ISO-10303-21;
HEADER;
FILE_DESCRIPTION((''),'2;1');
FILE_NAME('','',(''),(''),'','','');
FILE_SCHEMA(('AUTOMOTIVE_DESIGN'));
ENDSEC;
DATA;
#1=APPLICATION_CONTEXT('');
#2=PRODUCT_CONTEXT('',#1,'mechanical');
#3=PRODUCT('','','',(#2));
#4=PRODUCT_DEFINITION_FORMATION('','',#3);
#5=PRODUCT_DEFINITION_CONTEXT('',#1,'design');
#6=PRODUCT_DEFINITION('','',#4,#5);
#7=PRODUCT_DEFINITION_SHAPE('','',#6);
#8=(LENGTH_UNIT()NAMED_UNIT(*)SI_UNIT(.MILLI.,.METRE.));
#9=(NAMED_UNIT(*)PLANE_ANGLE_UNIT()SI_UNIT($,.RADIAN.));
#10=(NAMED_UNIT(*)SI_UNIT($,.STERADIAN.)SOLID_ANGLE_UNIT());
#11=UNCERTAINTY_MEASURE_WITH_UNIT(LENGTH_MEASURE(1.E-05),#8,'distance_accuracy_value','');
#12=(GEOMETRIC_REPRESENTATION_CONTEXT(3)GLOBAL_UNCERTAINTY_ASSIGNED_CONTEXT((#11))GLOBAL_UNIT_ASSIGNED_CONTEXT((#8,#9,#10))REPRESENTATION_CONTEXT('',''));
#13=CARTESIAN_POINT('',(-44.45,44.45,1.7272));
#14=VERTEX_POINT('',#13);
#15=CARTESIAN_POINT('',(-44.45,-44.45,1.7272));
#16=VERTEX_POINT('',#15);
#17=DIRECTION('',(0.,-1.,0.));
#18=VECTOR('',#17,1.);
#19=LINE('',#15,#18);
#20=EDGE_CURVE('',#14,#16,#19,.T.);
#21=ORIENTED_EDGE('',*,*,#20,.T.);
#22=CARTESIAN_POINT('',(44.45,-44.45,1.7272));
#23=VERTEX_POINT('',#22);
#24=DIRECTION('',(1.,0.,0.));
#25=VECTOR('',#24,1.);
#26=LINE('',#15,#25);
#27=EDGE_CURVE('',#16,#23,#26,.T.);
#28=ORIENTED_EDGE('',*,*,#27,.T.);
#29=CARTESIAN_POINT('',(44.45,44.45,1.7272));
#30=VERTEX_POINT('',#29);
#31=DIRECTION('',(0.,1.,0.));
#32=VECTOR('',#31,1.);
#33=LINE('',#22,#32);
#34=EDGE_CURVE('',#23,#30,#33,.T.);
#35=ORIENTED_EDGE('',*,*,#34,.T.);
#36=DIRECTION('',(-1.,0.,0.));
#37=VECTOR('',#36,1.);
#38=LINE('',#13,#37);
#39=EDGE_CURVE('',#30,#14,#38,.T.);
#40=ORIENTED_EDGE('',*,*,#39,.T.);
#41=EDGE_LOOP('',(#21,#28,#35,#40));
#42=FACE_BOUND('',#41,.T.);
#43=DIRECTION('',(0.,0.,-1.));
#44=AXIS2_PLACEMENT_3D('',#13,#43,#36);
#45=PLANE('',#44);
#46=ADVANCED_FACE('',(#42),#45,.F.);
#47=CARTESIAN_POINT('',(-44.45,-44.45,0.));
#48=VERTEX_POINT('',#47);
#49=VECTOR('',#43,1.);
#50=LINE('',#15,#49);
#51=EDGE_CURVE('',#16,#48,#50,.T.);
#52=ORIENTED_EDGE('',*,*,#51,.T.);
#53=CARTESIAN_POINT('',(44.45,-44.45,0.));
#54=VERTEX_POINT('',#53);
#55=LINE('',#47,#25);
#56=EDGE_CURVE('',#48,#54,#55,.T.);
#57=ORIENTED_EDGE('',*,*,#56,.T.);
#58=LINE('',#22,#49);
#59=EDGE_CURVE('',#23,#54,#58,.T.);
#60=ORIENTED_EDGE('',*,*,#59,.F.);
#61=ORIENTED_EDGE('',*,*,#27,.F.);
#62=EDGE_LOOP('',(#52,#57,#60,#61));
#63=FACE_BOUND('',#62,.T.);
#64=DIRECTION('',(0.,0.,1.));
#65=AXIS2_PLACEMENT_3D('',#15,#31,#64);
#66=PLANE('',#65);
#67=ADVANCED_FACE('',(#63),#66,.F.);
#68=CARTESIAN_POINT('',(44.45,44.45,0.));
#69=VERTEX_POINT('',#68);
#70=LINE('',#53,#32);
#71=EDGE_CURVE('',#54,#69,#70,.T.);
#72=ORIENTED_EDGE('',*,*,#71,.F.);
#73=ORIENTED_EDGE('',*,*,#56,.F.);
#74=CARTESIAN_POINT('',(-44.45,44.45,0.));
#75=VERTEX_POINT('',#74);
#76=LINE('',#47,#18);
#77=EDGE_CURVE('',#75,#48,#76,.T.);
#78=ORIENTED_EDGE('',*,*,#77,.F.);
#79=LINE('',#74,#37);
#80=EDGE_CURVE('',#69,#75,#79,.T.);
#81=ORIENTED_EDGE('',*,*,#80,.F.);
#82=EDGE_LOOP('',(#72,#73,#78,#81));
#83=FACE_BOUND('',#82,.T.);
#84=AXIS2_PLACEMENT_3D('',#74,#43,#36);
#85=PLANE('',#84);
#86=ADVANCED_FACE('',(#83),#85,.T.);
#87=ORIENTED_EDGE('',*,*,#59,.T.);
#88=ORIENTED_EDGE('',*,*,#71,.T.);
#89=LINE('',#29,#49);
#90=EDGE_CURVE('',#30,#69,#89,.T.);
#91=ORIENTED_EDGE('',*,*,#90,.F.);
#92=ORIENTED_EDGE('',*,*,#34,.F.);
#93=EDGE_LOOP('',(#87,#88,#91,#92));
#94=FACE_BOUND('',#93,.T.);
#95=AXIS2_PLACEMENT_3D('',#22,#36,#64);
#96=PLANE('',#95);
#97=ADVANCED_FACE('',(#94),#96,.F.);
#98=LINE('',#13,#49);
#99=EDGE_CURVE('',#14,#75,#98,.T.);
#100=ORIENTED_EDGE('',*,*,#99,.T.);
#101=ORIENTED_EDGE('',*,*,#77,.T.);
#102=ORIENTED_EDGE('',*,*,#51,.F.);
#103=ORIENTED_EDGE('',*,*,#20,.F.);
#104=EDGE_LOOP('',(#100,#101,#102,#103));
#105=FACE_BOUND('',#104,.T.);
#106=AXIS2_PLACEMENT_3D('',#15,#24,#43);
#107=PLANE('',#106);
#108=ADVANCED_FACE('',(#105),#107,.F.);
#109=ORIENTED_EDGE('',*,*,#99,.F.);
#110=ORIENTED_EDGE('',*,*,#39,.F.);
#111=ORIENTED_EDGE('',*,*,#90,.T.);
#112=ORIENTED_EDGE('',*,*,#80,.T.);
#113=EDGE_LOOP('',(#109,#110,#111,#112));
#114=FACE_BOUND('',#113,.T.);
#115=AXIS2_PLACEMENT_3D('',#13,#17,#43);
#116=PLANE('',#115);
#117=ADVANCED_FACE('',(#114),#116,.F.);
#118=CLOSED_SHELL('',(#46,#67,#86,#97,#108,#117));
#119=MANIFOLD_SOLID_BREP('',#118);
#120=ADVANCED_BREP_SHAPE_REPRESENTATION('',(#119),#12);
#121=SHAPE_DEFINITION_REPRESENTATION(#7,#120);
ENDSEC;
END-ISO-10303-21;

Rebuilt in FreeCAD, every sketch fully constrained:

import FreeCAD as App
import Part
import Sketcher
Q = App.Units.Quantity

doc = App.newDocument("Part")
body = doc.addObject("PartDesign::Body", "Body")

sketch1 = body.newObject("Sketcher::SketchObject", "Sketch")
sketch1.AttachmentSupport = (doc.getObject("XY_Plane"), [""])
sketch1.MapMode = "FlatFace"
sketch1.addGeometry([
    Part.LineSegment(App.Vector(-44.45, 44.45, 0), App.Vector(-44.45, -44.45, 0)),
    Part.LineSegment(App.Vector(-44.45, -44.45, 0), App.Vector(44.45, -44.45, 0)),
    Part.LineSegment(App.Vector(44.45, -44.45, 0), App.Vector(44.45, 44.45, 0)),
    Part.LineSegment(App.Vector(44.45, 44.45, 0), App.Vector(-44.45, 44.45, 0)),
], False)
sketch1.addConstraint([
    Sketcher.Constraint("Coincident", 0, 2, 1, 1),
    Sketcher.Constraint("Coincident", 1, 2, 2, 1),
    Sketcher.Constraint("Coincident", 2, 2, 3, 1),
    Sketcher.Constraint("Coincident", 3, 2, 0, 1),
    Sketcher.Constraint("Vertical", 0),
    Sketcher.Constraint("Horizontal", 1),
    Sketcher.Constraint("Vertical", 2),
    Sketcher.Constraint("Horizontal", 3),
    Sketcher.Constraint("Symmetric", 0, 2, 2, 2, -1, 1),
    Sketcher.Constraint("Equal", 3, 0),
    Sketcher.Constraint("DistanceX", 1, 1, 1, 2, Q("3.5 in")),
])
pad1 = body.newObject("PartDesign::Pad", "Pad")
pad1.Profile = sketch1
pad1.Length = Q("0.068 in")

doc.recompute()
